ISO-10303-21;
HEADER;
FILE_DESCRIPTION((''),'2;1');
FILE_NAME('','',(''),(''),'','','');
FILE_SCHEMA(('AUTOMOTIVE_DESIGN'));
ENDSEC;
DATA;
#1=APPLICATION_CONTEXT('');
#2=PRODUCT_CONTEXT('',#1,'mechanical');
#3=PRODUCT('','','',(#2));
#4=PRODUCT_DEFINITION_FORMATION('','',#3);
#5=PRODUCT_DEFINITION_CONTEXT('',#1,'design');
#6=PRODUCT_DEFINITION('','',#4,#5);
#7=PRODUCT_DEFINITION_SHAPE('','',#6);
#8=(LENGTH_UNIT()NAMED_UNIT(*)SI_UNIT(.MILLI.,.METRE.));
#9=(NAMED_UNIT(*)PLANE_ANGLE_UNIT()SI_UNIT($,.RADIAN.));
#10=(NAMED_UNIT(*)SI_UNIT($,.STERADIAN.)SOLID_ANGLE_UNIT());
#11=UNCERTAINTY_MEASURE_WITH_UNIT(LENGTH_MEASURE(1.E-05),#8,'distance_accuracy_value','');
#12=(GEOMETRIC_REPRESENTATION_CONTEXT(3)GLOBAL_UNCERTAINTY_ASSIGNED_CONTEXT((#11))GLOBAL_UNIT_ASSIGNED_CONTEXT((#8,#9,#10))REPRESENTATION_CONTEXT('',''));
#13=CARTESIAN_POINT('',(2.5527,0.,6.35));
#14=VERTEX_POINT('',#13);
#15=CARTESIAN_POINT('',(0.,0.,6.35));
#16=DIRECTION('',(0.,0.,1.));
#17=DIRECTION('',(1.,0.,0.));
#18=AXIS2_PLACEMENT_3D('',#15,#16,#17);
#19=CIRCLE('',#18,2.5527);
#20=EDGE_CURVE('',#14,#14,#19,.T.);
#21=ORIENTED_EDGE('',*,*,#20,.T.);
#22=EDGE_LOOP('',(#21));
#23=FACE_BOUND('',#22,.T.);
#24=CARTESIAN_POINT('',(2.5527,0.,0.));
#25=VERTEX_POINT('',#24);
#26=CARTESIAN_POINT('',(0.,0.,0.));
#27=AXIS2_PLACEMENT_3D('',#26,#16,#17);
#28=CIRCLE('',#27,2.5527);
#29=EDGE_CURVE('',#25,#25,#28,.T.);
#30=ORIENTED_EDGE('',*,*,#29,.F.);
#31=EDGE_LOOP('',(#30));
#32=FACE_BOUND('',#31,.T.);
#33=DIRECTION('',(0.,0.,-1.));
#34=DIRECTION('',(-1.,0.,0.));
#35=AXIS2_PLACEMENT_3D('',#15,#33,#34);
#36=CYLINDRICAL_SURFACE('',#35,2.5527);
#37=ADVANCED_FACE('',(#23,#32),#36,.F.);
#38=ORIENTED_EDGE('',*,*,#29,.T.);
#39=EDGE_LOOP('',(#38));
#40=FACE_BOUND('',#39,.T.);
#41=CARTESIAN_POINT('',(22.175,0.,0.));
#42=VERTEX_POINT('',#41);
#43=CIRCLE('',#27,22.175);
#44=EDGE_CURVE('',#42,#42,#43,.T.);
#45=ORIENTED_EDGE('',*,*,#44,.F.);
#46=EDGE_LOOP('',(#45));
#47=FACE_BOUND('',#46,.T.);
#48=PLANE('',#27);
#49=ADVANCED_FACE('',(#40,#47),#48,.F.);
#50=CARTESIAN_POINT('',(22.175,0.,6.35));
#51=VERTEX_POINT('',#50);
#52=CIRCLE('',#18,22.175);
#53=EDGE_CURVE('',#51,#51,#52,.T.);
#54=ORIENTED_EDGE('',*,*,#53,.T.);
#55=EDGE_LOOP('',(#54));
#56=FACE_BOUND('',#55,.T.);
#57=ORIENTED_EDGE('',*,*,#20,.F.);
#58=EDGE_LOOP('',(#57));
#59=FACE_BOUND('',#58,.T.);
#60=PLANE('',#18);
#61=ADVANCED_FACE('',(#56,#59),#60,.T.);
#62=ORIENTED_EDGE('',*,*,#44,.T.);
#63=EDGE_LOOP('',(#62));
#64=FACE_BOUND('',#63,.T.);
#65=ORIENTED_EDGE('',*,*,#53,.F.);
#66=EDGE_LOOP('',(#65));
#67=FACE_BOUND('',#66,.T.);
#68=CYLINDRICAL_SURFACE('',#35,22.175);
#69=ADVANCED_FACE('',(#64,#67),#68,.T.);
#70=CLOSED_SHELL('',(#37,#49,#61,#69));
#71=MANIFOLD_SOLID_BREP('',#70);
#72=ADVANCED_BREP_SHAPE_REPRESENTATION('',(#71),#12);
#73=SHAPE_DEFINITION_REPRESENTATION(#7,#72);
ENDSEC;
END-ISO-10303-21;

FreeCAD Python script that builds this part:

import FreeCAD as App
import Part
import Sketcher

V = App.Vector
Q = App.Units.Quantity

doc = App.newDocument("Part")
body = doc.addObject("PartDesign::Body", "Body")

sketch1 = doc.addObject("Sketcher::SketchObject", "Sketch")
body.addObject(sketch1)
sketch1.AttachmentSupport = (doc.XY_Plane, [""])
sketch1.MapMode = "FlatFace"
sketch1.addGeometry(Part.Circle(V(0, 0, 0), V(0, 0, 1), 22.2), False)
sketch1.addGeometry(Part.Circle(V(0, 0, 0), V(0, 0, 1), 2.6), False)
sketch1.addConstraint(Sketcher.Constraint("Coincident", 0, 3, -1, 1))
sketch1.addConstraint(Sketcher.Constraint("Coincident", 1, 3, -1, 1))
sketch1.addConstraint(Sketcher.Constraint("Diameter", 1, Q("0.201 in")))
sketch1.addConstraint(Sketcher.Constraint("Diameter", 0, 44.35))
pad1 = doc.addObject("PartDesign::Pad", "Pad")
body.addObject(pad1)
pad1.Profile = sketch1
pad1.Length = Q("0.25 in")

doc.recompute()
